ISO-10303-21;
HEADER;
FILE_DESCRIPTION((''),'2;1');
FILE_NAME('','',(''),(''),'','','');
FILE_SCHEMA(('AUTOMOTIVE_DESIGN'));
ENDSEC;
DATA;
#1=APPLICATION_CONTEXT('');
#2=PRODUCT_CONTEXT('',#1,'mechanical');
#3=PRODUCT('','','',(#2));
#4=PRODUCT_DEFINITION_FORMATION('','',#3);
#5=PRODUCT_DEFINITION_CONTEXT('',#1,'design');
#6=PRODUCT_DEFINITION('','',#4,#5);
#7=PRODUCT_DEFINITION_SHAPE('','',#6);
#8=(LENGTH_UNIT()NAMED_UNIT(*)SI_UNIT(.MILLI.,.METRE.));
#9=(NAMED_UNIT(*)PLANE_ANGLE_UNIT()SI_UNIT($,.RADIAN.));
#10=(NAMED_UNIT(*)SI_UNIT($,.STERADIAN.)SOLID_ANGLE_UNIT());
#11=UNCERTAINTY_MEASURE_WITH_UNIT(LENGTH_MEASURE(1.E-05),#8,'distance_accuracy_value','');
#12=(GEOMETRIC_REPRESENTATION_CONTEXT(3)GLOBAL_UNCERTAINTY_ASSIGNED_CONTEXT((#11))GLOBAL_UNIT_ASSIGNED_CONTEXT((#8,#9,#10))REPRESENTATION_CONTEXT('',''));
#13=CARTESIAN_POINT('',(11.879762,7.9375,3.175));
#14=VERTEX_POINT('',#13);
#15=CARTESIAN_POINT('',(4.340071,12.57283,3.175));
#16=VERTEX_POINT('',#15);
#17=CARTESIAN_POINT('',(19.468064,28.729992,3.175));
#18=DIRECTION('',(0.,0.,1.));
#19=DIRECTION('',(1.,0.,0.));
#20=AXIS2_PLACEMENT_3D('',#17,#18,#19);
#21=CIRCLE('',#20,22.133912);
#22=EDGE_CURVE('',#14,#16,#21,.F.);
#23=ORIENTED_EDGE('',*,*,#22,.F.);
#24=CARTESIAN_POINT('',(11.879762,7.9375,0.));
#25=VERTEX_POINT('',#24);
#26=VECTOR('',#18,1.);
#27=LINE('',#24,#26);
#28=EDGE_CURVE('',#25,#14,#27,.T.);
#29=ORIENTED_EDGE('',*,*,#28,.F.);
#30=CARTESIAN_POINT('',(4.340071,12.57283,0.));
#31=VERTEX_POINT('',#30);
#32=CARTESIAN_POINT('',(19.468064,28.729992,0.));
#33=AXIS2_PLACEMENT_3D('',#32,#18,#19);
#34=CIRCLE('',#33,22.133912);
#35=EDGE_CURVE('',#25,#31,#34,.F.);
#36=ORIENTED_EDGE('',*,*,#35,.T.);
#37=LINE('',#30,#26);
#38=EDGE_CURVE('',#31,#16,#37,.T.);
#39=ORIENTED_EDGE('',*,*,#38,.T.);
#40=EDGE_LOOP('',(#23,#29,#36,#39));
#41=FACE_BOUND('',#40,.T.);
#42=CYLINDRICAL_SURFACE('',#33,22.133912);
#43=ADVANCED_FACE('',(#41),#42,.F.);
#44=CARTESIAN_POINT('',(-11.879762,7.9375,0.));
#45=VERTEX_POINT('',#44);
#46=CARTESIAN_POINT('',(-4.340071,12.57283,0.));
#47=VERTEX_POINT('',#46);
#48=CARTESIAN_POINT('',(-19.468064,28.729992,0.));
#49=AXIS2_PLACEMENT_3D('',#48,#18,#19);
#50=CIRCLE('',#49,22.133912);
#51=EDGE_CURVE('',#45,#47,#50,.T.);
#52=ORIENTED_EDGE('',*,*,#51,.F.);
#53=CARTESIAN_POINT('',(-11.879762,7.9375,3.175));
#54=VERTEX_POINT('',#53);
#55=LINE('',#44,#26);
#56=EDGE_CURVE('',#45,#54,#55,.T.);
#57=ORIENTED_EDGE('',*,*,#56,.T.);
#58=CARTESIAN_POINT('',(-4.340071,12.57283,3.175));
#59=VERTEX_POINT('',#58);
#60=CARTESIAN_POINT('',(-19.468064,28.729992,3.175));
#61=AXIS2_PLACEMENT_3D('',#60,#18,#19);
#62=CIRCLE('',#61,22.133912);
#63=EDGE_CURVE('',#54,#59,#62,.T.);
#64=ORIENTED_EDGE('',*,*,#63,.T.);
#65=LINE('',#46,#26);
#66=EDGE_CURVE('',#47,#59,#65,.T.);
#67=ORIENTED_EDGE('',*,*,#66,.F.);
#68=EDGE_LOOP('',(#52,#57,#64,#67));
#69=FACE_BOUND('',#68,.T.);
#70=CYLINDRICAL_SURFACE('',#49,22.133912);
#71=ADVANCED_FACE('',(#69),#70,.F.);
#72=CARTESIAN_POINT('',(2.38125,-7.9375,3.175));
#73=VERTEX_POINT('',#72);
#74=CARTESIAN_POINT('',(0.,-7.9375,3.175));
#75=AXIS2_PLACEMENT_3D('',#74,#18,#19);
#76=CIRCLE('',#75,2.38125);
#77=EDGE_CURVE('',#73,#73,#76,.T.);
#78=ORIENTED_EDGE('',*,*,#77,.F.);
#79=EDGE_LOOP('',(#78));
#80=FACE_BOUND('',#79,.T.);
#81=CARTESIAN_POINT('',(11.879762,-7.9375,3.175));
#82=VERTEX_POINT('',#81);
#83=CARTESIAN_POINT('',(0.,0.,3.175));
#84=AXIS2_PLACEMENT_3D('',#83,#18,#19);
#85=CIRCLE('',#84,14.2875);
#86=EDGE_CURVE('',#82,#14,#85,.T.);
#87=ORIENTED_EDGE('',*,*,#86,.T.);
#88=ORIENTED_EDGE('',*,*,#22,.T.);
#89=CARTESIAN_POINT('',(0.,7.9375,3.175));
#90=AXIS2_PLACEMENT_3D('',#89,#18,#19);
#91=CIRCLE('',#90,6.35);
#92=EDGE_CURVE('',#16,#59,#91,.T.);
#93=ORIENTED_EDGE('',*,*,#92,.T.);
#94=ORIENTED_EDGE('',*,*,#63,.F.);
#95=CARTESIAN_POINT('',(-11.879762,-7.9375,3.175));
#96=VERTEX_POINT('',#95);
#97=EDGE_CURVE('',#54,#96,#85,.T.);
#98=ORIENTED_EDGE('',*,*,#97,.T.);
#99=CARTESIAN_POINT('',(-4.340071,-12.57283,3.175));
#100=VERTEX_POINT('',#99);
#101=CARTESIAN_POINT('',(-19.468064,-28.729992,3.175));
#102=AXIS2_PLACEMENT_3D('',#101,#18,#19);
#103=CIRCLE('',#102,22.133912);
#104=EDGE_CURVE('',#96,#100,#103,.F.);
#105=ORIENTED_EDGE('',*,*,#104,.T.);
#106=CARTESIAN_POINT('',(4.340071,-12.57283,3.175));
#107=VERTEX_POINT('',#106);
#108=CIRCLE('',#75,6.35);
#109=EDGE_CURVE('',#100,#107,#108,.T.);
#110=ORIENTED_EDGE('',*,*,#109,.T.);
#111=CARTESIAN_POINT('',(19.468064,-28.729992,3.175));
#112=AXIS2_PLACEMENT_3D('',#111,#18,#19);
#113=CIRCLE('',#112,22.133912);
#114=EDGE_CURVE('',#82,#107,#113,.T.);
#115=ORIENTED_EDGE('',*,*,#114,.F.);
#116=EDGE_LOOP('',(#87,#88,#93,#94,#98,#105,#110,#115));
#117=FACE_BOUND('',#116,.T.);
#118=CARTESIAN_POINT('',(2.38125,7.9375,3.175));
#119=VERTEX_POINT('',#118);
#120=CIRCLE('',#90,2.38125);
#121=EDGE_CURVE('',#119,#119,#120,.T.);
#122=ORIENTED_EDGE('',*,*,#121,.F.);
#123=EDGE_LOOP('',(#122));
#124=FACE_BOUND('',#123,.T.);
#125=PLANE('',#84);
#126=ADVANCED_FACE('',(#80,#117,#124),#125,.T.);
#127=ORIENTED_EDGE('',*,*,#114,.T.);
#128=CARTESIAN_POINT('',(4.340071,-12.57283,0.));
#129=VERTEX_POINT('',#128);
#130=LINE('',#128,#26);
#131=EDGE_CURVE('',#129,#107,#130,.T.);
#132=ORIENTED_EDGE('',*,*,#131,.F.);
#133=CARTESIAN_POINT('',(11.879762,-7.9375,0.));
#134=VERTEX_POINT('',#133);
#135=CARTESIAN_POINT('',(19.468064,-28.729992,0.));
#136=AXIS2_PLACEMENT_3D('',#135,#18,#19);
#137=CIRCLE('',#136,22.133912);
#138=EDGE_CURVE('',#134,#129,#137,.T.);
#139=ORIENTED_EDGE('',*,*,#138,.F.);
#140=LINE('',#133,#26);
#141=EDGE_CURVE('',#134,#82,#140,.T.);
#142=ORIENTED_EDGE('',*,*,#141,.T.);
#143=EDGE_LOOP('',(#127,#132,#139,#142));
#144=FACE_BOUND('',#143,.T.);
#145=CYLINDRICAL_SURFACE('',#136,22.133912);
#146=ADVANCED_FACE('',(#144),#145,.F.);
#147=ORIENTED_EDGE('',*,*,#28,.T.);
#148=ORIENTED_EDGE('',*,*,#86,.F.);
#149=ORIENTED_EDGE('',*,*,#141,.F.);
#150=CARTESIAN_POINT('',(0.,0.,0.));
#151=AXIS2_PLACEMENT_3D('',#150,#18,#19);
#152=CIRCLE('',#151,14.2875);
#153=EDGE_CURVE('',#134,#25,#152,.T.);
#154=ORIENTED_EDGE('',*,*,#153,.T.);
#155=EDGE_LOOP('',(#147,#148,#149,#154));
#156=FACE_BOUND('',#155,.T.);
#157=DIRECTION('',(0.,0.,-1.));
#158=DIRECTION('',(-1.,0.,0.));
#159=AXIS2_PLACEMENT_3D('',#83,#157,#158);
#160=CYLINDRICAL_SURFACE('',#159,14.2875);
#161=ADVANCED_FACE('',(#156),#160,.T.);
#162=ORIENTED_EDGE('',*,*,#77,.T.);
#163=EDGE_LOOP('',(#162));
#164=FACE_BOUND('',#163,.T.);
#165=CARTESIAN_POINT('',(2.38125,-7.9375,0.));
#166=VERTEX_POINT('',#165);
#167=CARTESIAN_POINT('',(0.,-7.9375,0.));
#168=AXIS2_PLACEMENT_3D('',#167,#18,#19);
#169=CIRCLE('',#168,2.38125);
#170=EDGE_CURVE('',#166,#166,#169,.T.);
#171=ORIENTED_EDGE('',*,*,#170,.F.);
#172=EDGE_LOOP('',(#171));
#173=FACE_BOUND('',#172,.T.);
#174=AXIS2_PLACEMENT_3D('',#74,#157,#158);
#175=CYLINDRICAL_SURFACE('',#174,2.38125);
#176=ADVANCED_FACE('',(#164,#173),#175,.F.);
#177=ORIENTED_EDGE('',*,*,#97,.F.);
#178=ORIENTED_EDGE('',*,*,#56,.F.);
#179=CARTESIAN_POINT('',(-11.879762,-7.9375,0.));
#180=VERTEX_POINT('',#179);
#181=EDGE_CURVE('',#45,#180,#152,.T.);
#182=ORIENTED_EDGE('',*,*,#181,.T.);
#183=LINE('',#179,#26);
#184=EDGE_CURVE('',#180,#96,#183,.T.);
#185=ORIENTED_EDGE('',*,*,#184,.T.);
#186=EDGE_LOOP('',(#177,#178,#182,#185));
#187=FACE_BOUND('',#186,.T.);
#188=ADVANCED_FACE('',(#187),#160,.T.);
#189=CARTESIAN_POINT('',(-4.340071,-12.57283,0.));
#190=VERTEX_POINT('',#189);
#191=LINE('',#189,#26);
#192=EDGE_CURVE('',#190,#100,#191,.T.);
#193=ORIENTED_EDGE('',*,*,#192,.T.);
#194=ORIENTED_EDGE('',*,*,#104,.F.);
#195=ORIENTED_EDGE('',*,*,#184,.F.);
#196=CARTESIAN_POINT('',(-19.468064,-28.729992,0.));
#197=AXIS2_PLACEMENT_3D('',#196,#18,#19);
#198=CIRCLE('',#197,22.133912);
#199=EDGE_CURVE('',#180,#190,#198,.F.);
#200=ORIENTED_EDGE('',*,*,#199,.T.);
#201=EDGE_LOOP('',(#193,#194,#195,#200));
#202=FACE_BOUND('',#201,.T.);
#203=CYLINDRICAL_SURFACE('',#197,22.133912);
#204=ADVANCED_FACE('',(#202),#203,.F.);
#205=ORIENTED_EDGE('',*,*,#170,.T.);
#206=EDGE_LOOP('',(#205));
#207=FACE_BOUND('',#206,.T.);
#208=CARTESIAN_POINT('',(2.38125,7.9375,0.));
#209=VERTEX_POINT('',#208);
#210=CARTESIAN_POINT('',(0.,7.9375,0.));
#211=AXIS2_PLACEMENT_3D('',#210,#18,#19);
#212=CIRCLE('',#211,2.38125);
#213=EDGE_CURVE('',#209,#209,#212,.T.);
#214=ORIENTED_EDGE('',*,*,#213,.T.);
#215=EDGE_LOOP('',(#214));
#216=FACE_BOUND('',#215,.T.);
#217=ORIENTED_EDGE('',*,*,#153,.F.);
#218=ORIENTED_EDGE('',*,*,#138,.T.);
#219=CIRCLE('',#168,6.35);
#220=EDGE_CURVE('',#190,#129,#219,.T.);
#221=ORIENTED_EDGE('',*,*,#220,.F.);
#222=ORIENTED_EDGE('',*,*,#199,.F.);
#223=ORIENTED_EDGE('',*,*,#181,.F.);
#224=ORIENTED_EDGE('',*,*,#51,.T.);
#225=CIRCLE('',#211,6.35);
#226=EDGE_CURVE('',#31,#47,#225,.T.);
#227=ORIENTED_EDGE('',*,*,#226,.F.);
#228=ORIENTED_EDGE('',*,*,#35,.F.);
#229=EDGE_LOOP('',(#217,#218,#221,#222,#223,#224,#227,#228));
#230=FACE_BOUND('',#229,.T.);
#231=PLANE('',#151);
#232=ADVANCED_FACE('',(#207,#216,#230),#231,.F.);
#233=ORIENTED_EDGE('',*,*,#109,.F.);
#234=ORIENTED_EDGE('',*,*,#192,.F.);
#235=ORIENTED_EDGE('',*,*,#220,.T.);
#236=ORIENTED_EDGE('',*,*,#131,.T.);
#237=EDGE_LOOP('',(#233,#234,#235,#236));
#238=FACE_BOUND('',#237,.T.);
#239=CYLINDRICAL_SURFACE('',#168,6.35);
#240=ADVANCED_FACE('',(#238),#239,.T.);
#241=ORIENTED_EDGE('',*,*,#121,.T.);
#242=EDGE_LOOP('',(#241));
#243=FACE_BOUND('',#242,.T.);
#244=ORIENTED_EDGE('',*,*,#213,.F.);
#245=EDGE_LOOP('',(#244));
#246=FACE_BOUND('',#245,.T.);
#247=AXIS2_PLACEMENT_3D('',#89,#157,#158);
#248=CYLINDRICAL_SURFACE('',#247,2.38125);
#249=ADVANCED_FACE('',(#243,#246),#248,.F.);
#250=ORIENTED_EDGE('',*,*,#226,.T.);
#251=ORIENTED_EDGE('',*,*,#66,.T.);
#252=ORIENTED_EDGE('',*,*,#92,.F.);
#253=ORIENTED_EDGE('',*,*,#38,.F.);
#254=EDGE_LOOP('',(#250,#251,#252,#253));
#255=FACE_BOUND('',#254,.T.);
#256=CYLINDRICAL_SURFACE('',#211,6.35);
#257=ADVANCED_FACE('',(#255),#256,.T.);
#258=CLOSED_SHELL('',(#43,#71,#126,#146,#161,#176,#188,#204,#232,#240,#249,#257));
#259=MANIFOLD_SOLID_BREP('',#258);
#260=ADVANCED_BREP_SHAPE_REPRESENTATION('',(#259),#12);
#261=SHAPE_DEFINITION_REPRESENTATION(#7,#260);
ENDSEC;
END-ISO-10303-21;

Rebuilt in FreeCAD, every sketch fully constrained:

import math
import FreeCAD as App
import Part
import Sketcher

V = App.Vector
Q = App.Units.Quantity

doc = App.newDocument("Part")
body = doc.addObject("PartDesign::Body", "Body")

sketch1 = doc.addObject("Sketcher::SketchObject", "Sketch")
body.addObject(sketch1)
sketch1.AttachmentSupport = (doc.XY_Plane, [""])
sketch1.MapMode = "FlatFace"
sketch1.addGeometry([
    Part.Circle(V(0, 0, 0), V(0, 0, 1), 14.3),
    Part.Circle(V(0, -7.9, 0), V(0, 0, 1), 2.4),
    Part.Circle(V(0, 7.9, 0), V(0, 0, 1), 2.4),
], False)
sketch1.addConstraint([
    Sketcher.Constraint("Coincident", 0, 3, -1, 1),
    Sketcher.Constraint("Equal", 1, 2),
    Sketcher.Constraint("Symmetric", 1, 3, 2, 3, -1, 1),
    Sketcher.Constraint("PointOnObject", 1, 3, -2),
    Sketcher.Constraint("Diameter", 0, Q("1.125 in")),
    Sketcher.Constraint("Diameter", 1, Q("0.1875 in")),
    Sketcher.Constraint("DistanceY", 1, 3, -1, 1, Q("0.3125 in")),
])
pad1 = doc.addObject("PartDesign::Pad", "Pad")
body.addObject(pad1)
pad1.Profile = sketch1
pad1.Length = Q("0.125 in")

sketch2 = doc.addObject("Sketcher::SketchObject", "Sketch001")
body.addObject(sketch2)
sketch2.AttachmentSupport = (doc.XY_Plane, [""])
sketch2.MapMode = "FlatFace"
sketch2.AttachmentOffset = App.Placement(V(0, 0, 0.125 * 25.4), App.Rotation())
sketch2.addGeometry([
    Part.Circle(V(0, 0, 0), V(0, 0, 1), 18.8),
    Part.ArcOfCircle(Part.Circle(V(0, 0, 0), V(0, 0, 1), 14.3), math.radians(-34), math.radians(34)),
    Part.ArcOfCircle(Part.Circle(V(19.5, -28.7, 0), V(0, 0, 1), 22.1), math.radians(110), math.radians(133)),
    Part.ArcOfCircle(Part.Circle(V(0, -7.9, 0), V(0, 0, 1), 6.4), math.radians(-90), math.radians(-47)),
    Part.ArcOfCircle(Part.Circle(V(0, -7.9, 0), V(0, 0, 1), 6.3), math.radians(-133), math.radians(-90)),
    Part.ArcOfCircle(Part.Circle(V(-19.5, -28.7, 0), V(0, 0, 1), 22.1), math.radians(47), math.radians(70)),
    Part.ArcOfCircle(Part.Circle(V(0, 0, 0), V(0, 0, 1), 14.3), math.radians(146), math.radians(214)),
    Part.ArcOfCircle(Part.Circle(V(-19.5, 28.7, 0), V(0, 0, 1), 22.1), math.radians(-70), math.radians(-47)),
    Part.ArcOfCircle(Part.Circle(V(0, 7.9, 0), V(0, 0, 1), 6.4), math.radians(90), math.radians(133)),
    Part.ArcOfCircle(Part.Circle(V(0, 7.9, 0), V(0, 0, 1), 6.4), math.radians(47), math.radians(90)),
    Part.ArcOfCircle(Part.Circle(V(19.5, 28.7, 0), V(0, 0, 1), 22.1), math.radians(-133), math.radians(-110)),
], False)
sketch2.addConstraint([
    Sketcher.Constraint("Coincident", 1, 1, 2, 1),
    Sketcher.Constraint("Tangent", 2, 2, 3, 2),
    Sketcher.Constraint("Tangent", 3, 1, 4, 2),
    Sketcher.Constraint("Tangent", 4, 1, 5, 1),
    Sketcher.Constraint("Coincident", 5, 2, 6, 2),
    Sketcher.Constraint("Coincident", 6, 1, 7, 1),
    Sketcher.Constraint("Tangent", 7, 2, 8, 2),
    Sketcher.Constraint("Tangent", 8, 1, 9, 2),
    Sketcher.Constraint("Tangent", 9, 1, 10, 1),
    Sketcher.Constraint("Coincident", 10, 2, 1, 2),
    Sketcher.Constraint("Coincident", 0, 3, -1, 1),
    Sketcher.Constraint("Coincident", 1, 3, -1, 1),
    Sketcher.Constraint("Coincident", 6, 3, -1, 1),
    Sketcher.Constraint("Equal", 3, 4),
    Sketcher.Constraint("Equal", 2, 5),
    Sketcher.Constraint("Equal", 1, 6),
    Sketcher.Constraint("Equal", 5, 7),
    Sketcher.Constraint("Equal", 4, 8),
    Sketcher.Constraint("Equal", 8, 9),
    Sketcher.Constraint("Equal", 7, 10),
    Sketcher.Constraint("Symmetric", 2, 3, 7, 3, -1, 1),
    Sketcher.Constraint("Symmetric", 5, 3, 10, 3, -1, 1),
    Sketcher.Constraint("Symmetric", 2, 3, 5, 3, -2),
    Sketcher.Constraint("PointOnObject", 3, 1, -2),
    Sketcher.Constraint("PointOnObject", 8, 1, -2),
    Sketcher.Constraint("Horizontal", 4, 3, 1, 1),
    Sketcher.Constraint("Radius", 3, Q("0.25 in")),
    Sketcher.Constraint("Radius", 1, Q("0.5625 in")),
    Sketcher.Constraint("DistanceY", 3, 3, -1, 1, Q("0.3125 in")),
    Sketcher.Constraint("Radius", 2, 22.133912),
    Sketcher.Constraint("Diameter", 0, 37.664405),
])
pocket1 = doc.addObject("PartDesign::Pocket", "Pocket")
body.addObject(pocket1)
pocket1.Profile = sketch2
pocket1.Length = 21.453507

doc.recompute()
